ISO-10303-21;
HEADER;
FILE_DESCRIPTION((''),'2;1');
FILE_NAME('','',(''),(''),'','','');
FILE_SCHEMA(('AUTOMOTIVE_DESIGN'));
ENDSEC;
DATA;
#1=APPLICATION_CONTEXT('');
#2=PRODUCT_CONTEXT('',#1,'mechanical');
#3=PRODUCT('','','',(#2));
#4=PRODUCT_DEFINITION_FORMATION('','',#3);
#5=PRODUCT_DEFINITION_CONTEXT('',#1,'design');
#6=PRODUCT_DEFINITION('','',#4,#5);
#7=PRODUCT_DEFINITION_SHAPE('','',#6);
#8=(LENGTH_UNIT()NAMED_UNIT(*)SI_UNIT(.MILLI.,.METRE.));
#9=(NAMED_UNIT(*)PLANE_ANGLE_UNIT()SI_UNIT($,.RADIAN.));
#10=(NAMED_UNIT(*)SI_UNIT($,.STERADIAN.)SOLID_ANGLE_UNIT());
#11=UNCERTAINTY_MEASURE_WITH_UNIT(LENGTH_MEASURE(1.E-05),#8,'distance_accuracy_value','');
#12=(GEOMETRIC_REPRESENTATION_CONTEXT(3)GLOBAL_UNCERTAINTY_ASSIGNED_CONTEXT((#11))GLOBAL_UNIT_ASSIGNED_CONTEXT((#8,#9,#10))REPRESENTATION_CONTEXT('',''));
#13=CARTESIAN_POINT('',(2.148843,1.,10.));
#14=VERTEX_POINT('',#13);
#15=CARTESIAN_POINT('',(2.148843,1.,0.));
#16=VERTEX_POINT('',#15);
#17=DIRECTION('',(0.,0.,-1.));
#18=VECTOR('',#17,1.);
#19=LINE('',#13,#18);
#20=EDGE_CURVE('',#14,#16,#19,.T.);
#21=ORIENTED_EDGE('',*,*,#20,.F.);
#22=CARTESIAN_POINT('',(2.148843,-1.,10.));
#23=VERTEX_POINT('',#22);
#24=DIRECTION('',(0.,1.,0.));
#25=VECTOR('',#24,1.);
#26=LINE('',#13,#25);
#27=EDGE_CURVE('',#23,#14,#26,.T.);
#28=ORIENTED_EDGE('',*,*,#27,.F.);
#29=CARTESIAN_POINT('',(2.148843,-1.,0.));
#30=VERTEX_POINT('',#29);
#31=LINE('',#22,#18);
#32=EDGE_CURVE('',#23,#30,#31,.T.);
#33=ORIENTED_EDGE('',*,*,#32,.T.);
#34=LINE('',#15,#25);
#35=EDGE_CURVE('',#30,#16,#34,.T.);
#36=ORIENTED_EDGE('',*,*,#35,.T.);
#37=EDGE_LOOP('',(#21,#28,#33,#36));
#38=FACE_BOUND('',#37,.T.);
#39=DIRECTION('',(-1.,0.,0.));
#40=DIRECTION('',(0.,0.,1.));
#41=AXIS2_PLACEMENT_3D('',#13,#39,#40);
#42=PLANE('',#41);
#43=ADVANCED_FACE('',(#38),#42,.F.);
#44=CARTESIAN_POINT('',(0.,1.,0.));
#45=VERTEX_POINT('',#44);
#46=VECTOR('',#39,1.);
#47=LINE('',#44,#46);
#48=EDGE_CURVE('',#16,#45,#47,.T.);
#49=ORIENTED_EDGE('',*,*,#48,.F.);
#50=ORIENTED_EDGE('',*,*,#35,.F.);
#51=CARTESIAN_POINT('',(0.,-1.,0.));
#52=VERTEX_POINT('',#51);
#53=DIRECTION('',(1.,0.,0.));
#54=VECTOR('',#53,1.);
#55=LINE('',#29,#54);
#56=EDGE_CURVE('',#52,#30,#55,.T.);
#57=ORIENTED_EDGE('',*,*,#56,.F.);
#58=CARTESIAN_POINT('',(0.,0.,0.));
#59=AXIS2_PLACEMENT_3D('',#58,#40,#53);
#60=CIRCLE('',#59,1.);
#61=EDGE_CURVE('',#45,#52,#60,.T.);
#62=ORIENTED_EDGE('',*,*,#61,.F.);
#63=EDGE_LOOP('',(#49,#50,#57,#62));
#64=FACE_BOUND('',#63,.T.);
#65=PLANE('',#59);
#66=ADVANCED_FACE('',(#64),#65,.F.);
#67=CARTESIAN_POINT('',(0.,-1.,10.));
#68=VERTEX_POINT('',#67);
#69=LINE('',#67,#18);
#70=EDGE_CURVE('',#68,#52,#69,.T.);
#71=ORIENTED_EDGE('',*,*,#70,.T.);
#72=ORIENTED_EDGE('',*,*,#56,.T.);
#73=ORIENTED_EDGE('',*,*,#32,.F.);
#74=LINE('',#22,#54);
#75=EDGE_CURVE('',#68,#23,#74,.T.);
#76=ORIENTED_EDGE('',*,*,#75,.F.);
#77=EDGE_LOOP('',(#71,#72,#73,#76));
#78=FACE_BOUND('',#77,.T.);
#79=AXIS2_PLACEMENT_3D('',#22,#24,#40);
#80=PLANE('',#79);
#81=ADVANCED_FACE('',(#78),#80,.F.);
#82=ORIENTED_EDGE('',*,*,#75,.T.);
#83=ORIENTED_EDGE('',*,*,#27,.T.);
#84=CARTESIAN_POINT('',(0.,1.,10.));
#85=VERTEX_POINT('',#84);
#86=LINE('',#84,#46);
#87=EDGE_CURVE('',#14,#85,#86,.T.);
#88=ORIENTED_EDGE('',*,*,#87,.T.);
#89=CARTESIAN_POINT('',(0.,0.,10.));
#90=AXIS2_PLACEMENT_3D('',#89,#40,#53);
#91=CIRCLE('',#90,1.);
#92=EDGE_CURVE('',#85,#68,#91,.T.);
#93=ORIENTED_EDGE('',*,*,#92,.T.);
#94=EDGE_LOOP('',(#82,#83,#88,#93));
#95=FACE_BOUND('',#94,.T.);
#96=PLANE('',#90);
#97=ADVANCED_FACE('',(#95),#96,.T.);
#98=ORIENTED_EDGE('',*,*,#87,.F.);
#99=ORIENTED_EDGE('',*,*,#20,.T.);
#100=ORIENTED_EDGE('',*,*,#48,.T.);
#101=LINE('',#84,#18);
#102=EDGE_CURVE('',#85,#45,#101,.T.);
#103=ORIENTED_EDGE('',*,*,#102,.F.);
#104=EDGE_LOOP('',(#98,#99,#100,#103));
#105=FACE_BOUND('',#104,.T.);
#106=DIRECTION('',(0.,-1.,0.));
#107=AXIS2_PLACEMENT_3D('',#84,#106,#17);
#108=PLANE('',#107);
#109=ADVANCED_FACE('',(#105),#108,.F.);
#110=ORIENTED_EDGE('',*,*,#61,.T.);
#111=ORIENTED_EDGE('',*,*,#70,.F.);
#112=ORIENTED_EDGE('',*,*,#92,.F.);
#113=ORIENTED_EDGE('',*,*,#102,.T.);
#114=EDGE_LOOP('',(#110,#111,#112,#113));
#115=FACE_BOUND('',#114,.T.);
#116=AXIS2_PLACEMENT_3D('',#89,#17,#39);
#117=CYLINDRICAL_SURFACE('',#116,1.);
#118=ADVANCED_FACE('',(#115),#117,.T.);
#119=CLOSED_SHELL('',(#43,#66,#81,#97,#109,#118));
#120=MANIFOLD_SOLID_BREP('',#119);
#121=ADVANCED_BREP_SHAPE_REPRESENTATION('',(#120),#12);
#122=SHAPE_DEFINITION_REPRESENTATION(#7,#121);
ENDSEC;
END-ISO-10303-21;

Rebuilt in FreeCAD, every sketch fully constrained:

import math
import FreeCAD as App
import Part
import Sketcher
from FreeCAD import Vector

doc = App.newDocument("Part")
params = doc.addObject("Spreadsheet::Sheet", "Params")
for row, (alias, value) in enumerate([
    ("sketch1_radius", "1 mm"),
    ("pad1_length", "10 mm"),
], start=1):
    params.set(f"A{row}", alias)
    params.set(f"B{row}", "=" + value)
    params.setAlias(f"B{row}", alias)

body = doc.addObject("PartDesign::Body", "Body")

# Sketch on XY plane
sketch1 = body.newObject("Sketcher::SketchObject", "Sketch")
sketch1.AttachmentSupport = (doc.getObject("XY_Plane"), [""])
sketch1.MapMode = "FlatFace"
sketch1.addGeometry([
    Part.LineSegment(Vector(2.148843, 1, 0), Vector(0, 1, 0)),
    Part.ArcOfCircle(Part.Circle(Vector(0, 0, 0), Vector(0, 0, 1), 1), math.radians(90), math.radians(270)),
    Part.LineSegment(Vector(0, -1, 0), Vector(2.148843, -1, 0)),
    Part.LineSegment(Vector(2.148843, -1, 0), Vector(2.148843, 1, 0)),
], False)
sketch1.addConstraint([
    Sketcher.Constraint("Tangent", 0, 2, 1, 1),
    Sketcher.Constraint("Tangent", 1, 2, 2, 1),
    Sketcher.Constraint("Coincident", 2, 2, 3, 1),
    Sketcher.Constraint("Coincident", 3, 2, 0, 1),
    Sketcher.Constraint("Horizontal", 0),
    Sketcher.Constraint("Horizontal", 2),
    Sketcher.Constraint("Vertical", 3),
    Sketcher.Constraint("Coincident", 1, 3, -1, 1),
    Sketcher.Constraint("Radius", 1, 1.0),
    Sketcher.Constraint("DistanceX", 0, 2, 0, 1, 2.148843),
])
sketch1.setExpression("Constraints[8]", "Params.sketch1_radius")
pad1 = body.newObject("PartDesign::Pad", "Pad")
pad1.Profile = sketch1
pad1.setExpression("Length", "Params.pad1_length")

doc.recompute()
